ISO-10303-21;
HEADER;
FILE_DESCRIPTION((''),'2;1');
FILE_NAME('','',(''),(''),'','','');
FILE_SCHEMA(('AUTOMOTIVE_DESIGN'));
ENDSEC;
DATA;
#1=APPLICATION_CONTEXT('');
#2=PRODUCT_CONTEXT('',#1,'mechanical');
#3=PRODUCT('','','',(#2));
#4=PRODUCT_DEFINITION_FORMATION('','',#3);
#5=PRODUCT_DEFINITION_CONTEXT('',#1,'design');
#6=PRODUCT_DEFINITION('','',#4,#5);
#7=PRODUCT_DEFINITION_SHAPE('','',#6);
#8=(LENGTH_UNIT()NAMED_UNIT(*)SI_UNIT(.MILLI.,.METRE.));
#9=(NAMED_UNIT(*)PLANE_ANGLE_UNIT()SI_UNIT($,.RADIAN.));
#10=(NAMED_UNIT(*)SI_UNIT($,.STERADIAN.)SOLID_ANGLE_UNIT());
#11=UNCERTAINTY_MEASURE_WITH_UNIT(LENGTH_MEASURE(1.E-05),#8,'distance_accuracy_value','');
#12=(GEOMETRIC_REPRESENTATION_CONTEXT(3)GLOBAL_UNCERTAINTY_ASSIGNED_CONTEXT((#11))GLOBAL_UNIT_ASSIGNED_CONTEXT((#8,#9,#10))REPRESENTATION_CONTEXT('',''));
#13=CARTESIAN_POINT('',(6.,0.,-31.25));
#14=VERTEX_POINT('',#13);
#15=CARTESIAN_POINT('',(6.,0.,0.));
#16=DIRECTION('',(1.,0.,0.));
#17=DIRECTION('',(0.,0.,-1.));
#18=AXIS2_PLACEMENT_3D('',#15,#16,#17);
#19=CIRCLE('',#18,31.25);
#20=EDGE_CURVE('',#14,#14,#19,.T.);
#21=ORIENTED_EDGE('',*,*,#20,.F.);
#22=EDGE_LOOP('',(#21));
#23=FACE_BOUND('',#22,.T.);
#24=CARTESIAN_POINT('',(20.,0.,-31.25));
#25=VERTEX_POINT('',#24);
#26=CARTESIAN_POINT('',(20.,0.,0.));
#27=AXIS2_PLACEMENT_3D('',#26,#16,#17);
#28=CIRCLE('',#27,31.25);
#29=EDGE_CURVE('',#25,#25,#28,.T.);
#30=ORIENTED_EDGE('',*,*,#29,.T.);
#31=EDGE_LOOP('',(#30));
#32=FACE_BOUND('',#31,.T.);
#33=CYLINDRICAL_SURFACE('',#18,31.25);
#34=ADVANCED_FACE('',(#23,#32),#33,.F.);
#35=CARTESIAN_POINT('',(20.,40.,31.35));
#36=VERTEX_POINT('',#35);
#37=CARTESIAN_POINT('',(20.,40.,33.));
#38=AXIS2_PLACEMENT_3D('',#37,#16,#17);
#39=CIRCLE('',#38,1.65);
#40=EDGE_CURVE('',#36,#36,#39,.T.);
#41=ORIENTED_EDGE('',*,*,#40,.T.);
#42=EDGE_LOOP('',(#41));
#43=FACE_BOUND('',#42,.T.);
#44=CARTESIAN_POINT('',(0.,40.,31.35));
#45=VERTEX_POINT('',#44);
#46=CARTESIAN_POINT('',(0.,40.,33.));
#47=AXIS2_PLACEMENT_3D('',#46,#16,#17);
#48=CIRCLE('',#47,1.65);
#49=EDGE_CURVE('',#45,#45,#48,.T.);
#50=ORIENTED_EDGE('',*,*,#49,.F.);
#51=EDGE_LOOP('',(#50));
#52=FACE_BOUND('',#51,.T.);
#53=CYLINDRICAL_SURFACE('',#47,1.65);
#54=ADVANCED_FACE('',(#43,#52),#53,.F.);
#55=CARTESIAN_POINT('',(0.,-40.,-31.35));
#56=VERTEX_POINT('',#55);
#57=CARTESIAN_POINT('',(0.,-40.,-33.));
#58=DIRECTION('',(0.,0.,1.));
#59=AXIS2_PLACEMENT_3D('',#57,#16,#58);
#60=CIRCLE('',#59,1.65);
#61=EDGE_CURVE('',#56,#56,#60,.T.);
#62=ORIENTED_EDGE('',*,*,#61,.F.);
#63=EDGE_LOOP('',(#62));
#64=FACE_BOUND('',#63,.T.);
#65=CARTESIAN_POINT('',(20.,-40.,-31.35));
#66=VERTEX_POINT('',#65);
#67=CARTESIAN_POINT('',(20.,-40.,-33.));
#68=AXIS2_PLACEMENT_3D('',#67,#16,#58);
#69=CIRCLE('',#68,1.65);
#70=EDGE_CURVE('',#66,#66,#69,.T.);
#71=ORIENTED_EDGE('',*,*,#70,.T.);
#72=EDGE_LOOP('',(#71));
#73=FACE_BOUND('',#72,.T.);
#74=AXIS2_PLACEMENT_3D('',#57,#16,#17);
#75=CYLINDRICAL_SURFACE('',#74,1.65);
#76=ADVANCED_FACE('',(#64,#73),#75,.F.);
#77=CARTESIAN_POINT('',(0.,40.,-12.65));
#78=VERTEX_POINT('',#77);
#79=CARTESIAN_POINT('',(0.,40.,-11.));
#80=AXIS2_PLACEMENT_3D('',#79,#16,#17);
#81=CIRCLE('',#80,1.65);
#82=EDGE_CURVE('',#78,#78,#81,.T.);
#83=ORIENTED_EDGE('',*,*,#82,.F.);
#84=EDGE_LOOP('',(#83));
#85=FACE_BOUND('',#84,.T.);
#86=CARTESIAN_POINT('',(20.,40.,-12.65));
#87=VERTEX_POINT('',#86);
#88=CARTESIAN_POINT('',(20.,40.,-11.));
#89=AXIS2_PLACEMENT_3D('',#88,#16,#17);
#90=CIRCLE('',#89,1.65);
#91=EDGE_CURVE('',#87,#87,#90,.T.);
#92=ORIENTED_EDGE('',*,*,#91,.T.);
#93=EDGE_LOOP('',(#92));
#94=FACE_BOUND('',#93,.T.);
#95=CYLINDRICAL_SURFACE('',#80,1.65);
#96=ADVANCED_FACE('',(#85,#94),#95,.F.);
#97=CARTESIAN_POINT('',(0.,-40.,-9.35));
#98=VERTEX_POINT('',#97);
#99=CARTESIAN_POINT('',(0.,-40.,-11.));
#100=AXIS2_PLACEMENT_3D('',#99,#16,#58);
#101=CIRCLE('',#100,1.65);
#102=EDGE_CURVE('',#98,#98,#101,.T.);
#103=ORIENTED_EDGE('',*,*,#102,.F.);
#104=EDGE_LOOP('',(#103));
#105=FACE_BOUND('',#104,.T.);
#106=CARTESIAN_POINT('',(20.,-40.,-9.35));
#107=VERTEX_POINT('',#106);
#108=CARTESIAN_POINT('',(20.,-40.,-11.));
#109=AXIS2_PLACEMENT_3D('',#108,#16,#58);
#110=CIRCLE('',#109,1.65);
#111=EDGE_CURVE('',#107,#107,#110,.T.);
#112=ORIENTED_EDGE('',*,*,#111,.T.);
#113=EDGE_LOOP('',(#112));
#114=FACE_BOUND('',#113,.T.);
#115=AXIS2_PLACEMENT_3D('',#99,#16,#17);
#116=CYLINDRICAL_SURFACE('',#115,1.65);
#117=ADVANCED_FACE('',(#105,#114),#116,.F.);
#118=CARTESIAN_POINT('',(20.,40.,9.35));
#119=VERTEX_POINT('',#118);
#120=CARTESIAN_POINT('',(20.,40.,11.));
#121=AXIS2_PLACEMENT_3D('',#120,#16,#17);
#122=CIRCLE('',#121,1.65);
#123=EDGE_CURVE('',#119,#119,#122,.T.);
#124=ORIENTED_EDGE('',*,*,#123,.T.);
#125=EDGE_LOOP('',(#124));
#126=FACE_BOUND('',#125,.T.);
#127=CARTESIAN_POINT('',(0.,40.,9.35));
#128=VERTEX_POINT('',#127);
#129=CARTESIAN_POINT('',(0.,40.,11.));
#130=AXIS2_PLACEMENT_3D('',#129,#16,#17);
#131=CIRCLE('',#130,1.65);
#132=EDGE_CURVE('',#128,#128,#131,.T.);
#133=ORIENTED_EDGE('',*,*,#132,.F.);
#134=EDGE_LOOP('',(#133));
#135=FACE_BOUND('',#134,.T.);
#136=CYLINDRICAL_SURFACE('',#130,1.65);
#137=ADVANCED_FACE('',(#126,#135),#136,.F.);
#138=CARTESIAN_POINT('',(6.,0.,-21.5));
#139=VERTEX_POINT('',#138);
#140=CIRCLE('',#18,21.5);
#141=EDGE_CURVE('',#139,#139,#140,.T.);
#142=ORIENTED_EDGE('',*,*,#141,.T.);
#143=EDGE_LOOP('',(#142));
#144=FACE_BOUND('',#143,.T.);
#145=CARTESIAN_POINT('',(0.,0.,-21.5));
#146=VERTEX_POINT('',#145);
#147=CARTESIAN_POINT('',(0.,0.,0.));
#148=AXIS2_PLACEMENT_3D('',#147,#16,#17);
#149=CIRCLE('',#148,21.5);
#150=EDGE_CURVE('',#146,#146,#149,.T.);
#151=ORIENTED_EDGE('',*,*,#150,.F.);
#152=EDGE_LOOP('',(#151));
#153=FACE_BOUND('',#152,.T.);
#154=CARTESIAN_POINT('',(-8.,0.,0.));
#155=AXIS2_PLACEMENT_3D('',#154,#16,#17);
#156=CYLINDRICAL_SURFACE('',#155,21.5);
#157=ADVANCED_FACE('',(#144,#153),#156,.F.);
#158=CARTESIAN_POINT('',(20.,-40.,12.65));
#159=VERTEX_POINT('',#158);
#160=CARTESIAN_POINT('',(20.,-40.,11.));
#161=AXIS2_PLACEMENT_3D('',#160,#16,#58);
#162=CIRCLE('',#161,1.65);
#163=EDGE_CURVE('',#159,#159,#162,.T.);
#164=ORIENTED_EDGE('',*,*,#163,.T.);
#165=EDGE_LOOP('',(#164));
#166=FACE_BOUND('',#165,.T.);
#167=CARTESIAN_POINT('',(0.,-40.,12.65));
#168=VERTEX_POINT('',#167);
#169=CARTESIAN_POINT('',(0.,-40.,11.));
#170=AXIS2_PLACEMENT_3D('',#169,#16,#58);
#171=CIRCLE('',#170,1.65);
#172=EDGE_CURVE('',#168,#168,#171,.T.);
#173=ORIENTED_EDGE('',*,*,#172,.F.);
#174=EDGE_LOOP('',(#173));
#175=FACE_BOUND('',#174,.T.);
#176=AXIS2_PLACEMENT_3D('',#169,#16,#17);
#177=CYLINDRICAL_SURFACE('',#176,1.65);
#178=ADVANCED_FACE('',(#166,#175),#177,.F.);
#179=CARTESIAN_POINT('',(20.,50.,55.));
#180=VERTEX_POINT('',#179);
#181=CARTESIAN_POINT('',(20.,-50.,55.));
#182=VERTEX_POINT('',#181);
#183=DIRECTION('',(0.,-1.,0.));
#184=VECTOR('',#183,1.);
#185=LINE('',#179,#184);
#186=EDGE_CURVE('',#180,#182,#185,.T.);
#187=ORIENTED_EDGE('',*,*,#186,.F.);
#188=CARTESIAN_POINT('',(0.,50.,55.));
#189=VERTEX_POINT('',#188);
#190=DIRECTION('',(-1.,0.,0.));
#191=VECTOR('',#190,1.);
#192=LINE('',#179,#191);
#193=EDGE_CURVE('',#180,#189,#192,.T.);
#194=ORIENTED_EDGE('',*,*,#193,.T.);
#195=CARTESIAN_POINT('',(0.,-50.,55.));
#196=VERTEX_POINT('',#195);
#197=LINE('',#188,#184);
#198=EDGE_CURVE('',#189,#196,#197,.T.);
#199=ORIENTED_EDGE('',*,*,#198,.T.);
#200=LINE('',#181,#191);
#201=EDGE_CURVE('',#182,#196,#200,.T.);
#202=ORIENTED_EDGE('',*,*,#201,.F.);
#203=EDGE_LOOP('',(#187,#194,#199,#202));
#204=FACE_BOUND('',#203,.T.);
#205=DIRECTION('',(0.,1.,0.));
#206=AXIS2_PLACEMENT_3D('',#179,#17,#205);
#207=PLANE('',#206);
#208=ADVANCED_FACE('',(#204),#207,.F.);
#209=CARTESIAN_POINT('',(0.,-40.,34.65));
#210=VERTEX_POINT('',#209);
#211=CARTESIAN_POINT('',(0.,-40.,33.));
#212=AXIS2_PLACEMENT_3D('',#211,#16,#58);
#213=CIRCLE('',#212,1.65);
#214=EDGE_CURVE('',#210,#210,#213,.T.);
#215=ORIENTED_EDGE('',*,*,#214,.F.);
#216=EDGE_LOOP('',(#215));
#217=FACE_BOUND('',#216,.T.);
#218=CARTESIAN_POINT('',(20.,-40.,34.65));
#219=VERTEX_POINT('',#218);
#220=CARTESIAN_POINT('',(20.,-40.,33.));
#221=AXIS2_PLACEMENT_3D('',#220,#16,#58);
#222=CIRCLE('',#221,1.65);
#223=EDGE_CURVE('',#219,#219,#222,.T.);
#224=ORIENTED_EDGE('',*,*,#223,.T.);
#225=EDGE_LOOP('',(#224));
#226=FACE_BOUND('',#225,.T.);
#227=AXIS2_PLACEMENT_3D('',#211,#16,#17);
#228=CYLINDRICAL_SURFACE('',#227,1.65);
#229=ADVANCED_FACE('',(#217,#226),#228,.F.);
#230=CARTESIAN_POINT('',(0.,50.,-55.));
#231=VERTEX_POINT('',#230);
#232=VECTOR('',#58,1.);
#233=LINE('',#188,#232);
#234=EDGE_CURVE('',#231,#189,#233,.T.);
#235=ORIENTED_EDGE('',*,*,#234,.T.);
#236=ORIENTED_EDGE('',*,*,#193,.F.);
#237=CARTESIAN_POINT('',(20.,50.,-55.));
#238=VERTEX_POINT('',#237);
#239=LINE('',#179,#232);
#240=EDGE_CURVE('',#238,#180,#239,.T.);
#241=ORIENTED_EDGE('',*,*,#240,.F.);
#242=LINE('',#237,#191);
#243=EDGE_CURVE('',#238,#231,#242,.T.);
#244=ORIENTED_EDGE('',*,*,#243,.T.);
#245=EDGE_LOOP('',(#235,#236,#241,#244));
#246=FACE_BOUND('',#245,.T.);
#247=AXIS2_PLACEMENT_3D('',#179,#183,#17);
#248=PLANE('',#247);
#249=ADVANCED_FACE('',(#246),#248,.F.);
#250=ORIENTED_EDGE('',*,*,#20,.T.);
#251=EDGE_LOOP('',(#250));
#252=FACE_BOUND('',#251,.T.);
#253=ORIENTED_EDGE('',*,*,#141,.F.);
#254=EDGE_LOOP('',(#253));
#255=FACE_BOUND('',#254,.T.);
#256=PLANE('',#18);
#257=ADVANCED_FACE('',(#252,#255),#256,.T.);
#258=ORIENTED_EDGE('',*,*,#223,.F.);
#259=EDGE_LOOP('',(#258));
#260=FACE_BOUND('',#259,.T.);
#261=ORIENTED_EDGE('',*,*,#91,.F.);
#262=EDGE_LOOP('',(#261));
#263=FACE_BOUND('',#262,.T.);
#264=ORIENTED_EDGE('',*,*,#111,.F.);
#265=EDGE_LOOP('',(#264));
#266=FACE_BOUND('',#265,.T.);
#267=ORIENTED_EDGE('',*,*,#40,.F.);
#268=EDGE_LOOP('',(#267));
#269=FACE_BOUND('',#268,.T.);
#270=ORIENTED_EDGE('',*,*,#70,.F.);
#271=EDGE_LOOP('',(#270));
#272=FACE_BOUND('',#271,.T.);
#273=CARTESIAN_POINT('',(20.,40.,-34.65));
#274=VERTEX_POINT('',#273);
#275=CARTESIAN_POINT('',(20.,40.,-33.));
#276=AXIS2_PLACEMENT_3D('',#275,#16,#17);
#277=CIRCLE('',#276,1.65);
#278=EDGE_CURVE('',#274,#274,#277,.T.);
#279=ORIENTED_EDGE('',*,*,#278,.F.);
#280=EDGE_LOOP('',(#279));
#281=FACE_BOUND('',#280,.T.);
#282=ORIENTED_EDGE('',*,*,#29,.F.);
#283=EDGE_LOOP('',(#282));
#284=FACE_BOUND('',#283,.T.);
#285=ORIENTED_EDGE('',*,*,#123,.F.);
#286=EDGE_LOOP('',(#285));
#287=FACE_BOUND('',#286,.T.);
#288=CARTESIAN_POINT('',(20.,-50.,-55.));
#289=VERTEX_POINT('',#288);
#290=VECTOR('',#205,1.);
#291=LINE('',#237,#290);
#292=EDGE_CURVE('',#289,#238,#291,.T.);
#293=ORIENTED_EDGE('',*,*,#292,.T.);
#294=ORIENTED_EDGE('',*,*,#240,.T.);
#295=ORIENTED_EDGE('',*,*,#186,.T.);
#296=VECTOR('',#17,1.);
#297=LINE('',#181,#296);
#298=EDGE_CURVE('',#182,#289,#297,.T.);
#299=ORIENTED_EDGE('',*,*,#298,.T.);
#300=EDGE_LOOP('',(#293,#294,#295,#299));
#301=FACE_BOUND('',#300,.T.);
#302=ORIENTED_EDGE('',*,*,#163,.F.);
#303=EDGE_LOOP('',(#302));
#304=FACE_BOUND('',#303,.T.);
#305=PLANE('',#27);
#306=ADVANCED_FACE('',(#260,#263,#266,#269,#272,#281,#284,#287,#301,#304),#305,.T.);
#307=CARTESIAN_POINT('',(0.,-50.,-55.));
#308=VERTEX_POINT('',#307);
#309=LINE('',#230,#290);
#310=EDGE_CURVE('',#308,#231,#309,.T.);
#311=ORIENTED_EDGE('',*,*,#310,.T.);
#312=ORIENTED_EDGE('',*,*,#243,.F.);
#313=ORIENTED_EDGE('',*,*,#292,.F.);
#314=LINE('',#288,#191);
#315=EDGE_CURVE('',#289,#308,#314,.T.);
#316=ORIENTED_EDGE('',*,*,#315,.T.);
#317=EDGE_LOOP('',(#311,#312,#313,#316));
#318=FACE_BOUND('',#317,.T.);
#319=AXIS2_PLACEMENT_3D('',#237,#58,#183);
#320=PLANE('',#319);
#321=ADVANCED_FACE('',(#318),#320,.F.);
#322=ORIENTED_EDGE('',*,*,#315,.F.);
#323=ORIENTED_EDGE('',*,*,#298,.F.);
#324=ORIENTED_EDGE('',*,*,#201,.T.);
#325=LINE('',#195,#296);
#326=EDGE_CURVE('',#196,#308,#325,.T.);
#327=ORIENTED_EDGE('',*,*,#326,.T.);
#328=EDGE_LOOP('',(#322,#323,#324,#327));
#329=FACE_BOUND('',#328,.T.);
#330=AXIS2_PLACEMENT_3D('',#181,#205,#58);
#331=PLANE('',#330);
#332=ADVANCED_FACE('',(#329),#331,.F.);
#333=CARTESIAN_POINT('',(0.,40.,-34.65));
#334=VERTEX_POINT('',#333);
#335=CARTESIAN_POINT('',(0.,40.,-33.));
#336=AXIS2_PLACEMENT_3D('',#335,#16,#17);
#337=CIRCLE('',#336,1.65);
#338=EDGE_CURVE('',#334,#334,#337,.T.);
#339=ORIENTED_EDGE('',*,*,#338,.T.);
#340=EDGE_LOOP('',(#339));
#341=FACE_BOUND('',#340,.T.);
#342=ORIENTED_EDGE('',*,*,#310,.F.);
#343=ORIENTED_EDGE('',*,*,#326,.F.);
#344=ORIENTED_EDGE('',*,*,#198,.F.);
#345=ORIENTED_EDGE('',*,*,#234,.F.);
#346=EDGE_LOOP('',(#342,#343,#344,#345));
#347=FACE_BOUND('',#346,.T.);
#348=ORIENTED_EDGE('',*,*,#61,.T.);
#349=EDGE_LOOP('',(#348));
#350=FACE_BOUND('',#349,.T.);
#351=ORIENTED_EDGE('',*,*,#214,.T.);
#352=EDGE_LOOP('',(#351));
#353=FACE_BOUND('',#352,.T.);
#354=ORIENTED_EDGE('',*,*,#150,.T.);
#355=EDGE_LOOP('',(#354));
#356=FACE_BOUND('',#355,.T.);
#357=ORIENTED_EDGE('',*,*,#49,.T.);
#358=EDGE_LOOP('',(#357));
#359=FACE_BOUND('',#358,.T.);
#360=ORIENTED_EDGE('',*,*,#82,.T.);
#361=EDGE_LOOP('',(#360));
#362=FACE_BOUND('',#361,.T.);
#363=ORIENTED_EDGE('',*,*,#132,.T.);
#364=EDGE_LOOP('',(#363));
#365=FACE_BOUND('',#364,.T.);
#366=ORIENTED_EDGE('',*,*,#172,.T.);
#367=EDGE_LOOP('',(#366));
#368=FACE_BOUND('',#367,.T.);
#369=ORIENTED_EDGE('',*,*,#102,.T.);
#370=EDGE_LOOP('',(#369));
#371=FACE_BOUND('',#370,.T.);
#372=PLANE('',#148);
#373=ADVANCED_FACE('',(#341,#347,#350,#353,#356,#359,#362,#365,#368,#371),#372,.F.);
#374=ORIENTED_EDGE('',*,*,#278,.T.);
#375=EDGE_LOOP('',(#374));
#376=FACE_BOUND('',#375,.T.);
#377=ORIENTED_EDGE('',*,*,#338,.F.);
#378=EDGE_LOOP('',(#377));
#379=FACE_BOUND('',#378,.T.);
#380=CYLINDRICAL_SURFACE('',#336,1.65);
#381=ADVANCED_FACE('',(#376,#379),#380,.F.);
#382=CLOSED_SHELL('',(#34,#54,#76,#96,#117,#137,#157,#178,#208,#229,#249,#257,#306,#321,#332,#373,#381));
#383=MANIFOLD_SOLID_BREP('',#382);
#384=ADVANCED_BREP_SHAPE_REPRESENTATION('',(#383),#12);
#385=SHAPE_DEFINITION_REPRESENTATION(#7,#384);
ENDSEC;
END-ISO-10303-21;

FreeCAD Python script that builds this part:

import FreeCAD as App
import Part
import Sketcher
Q = App.Units.Quantity


def add_polygon(sketch, points):
    """Adds a closed chain of lines whose ends are joined by coincident constraints."""
    first, n = sketch.GeometryCount, len(points)
    for a, b in zip(points, points[1:] + points[:1]):
        sketch.addGeometry(Part.LineSegment(App.Vector(*a, 0), App.Vector(*b, 0)), False)
    for i in range(n):
        sketch.addConstraint(Sketcher.Constraint("Coincident", first + i, 2, first + (i + 1) % n, 1))

doc = App.newDocument("Part")
params = doc.addObject("Spreadsheet::Sheet", "Params")
for row, (alias, value) in enumerate([
    ("sketch1_width", "100 mm"),
    ("sketch1_height", "110 mm"),
    ("pad1_length", "20 mm"),
    ("sketch2_diameter", "62.5 mm"),
    ("pocket1_length", "14 mm"),
    ("sketch3_diameter", "43 mm"),
    ("pocket2_length", "14 mm"),
    ("sketch4_diameter", "3.3 mm"),
], start=1):
    params.set(f"A{row}", alias)
    params.set(f"B{row}", "=" + value)
    params.setAlias(f"B{row}", alias)

body = doc.addObject("PartDesign::Body", "Body")

# Sketch on YZ plane
sketch1 = body.newObject("Sketcher::SketchObject", "Sketch")
sketch1.AttachmentSupport = (doc.getObject("YZ_Plane"), [""])
sketch1.MapMode = "FlatFace"
add_polygon(sketch1, [(50, 55), (-50, 55), (-50, -55), (50, -55)])  # lines 0-3
sketch1.addConstraint([
    Sketcher.Constraint("Horizontal", 0),
    Sketcher.Constraint("Vertical", 1),
    Sketcher.Constraint("Horizontal", 2),
    Sketcher.Constraint("Vertical", 3),
    Sketcher.Constraint("Symmetric", 0, 2, 2, 2, -1, 1),
    Sketcher.Constraint("DistanceX", 0, 2, 0, 1, Q("100 mm")),
    Sketcher.Constraint("DistanceY", 1, 2, 1, 1, Q("110 mm")),
])
sketch1.setExpression("Constraints[9]", "Params.sketch1_width")
sketch1.setExpression("Constraints[10]", "Params.sketch1_height")
pad1 = body.newObject("PartDesign::Pad", "Pad")
pad1.Profile = sketch1
pad1.setExpression("Length", "Params.pad1_length")

# Sketch on YZ plane
sketch2 = body.newObject("Sketcher::SketchObject", "Sketch001")
sketch2.AttachmentSupport = (doc.getObject("YZ_Plane"), [""])
sketch2.MapMode = "FlatFace"
sketch2.AttachmentOffset = App.Placement(App.Vector(0, 0, 20), App.Rotation())
sketch2.addGeometry(Part.Circle(App.Vector(0, 0, 0), App.Vector(0, 0, 1), 31), False)
sketch2.addConstraint([
    Sketcher.Constraint("Coincident", 0, 3, -1, 1),
    Sketcher.Constraint("Diameter", 0, Q("62.5 mm")),
])
sketch2.setExpression("Constraints[1]", "Params.sketch2_diameter")
pocket1 = body.newObject("PartDesign::Pocket", "Pocket")
pocket1.Profile = sketch2
pocket1.setExpression("Length", "Params.pocket1_length")

# Sketch on YZ plane
sketch3 = body.newObject("Sketcher::SketchObject", "Sketch002")
sketch3.AttachmentSupport = (doc.getObject("YZ_Plane"), [""])
sketch3.MapMode = "FlatFace"
sketch3.AttachmentOffset = App.Placement(App.Vector(0, 0, 6), App.Rotation())
sketch3.addGeometry(Part.Circle(App.Vector(0, 0, 0), App.Vector(0, 0, 1), 22), False)
sketch3.addConstraint([
    Sketcher.Constraint("Coincident", 0, 3, -1, 1),
    Sketcher.Constraint("Diameter", 0, Q("43 mm")),
])
sketch3.setExpression("Constraints[1]", "Params.sketch3_diameter")
pocket2 = body.newObject("PartDesign::Pocket", "Pocket001")
pocket2.Profile = sketch3
pocket2.setExpression("Length", "Params.pocket2_length")

# Sketch on YZ plane
sketch4 = body.newObject("Sketcher::SketchObject", "Sketch003")
sketch4.AttachmentSupport = (doc.getObject("YZ_Plane"), [""])
sketch4.MapMode = "FlatFace"
sketch4.AttachmentOffset = App.Placement(App.Vector(0, 0, 20), App.Rotation())
sketch4.addGeometry([
    Part.Circle(App.Vector(40, -33, 0), App.Vector(0, 0, 1), 1.6),  # 0
    Part.Circle(App.Vector(40, -11, 0), App.Vector(0, 0, 1), 1.6),  # 1
    Part.Circle(App.Vector(40, 11, 0), App.Vector(0, 0, 1), 1.6),  # 2
    Part.Circle(App.Vector(40, 33, 0), App.Vector(0, 0, 1), 1.6),  # 3
    Part.Circle(App.Vector(-40, 11, 0), App.Vector(0, 0, 1), 1.6),  # 4
    Part.Circle(App.Vector(-40, -11, 0), App.Vector(0, 0, 1), 1.6),  # 5
    Part.Circle(App.Vector(-40, -33, 0), App.Vector(0, 0, 1), 1.6),  # 6
    Part.Circle(App.Vector(-40, 33, 0), App.Vector(0, 0, 1), 1.6),  # 7
], False)
sketch4.addConstraint([
    Sketcher.Constraint("Equal", 0, 1),
    Sketcher.Constraint("Equal", 1, 2),
    Sketcher.Constraint("Equal", 2, 3),
    Sketcher.Constraint("Equal", 3, 4),
    Sketcher.Constraint("Equal", 4, 5),
    Sketcher.Constraint("Equal", 5, 6),
    Sketcher.Constraint("Equal", 6, 7),
    Sketcher.Constraint("Symmetric", 1, 3, 4, 3, -1, 1),
    Sketcher.Constraint("Symmetric", 2, 3, 5, 3, -1, 1),
    Sketcher.Constraint("Symmetric", 3, 3, 6, 3, -1, 1),
    Sketcher.Constraint("Symmetric", 0, 3, 7, 3, -1, 1),
    Sketcher.Constraint("Symmetric", 2, 3, 4, 3, -2),
    Sketcher.Constraint("Symmetric", 0, 3, 6, 3, -2),
    Sketcher.Constraint("Vertical", 0, 3, 1, 3),
    Sketcher.Constraint("Diameter", 0, Q("3.3 mm")),
    Sketcher.Constraint("DistanceX", -1, 1, 0, 3, Q("40 mm")),
    Sketcher.Constraint("DistanceY", 0, 3, -1, 1, Q("33 mm")),
    Sketcher.Constraint("DistanceY", 1, 3, -1, 1, Q("11 mm")),
])
sketch4.setExpression("Constraints[14]", "Params.sketch4_diameter")
pocket3 = body.newObject("PartDesign::Pocket", "Pocket002")
pocket3.Profile = sketch4
pocket3.Type = "ThroughAll"

doc.recompute()
